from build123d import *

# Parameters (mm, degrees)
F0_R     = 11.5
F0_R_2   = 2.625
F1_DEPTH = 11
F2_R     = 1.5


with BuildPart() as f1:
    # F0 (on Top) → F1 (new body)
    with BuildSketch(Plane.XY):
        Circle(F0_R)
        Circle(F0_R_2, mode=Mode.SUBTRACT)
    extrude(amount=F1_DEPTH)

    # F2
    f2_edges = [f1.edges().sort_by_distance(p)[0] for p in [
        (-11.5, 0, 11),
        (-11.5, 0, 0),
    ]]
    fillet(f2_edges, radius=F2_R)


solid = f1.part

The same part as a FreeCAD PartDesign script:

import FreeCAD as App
import Part
import Sketcher
from FreeCAD import Vector
Q = App.Units.Quantity


def edges_at(feature, points):
    """Names of the edges that pass closest to the given points."""
    edges = feature.Shape.Edges
    near = lambda p: min(range(len(edges)), key=lambda i: edges[i].distToShape(Part.Vertex(*p))[0])
    return sorted({f"Edge{near(p) + 1}" for p in points})

doc = App.newDocument("Part")
body = doc.addObject("PartDesign::Body", "Body")

sketch1 = doc.addObject("Sketcher::SketchObject", "Sketch")
body.addObject(sketch1)
sketch1.AttachmentSupport = (doc.XY_Plane, [""])
sketch1.MapMode = "FlatFace"
sketch1.addGeometry(Part.Circle(Vector(0, 0, 0), Vector(0, 0, 1), 11.5), False)
sketch1.addGeometry(Part.Circle(Vector(0, 0, 0), Vector(0, 0, 1), 2.6), False)
sketch1.addConstraint(Sketcher.Constraint("Coincident", 0, 3, -1, 1))
sketch1.addConstraint(Sketcher.Constraint("Coincident", 1, 3, -1, 1))
sketch1.addConstraint(Sketcher.Constraint("Diameter", 0, Q("23 mm")))
sketch1.addConstraint(Sketcher.Constraint("Diameter", 1, Q("5.25 mm")))
pad1 = doc.addObject("PartDesign::Pad", "Pad")
body.addObject(pad1)
pad1.Profile = sketch1
pad1.Length = 11
doc.recompute()

fillet = doc.addObject("PartDesign::Fillet", "Fillet")
body.addObject(fillet)
fillet.Base = (pad1, edges_at(pad1, [(-11.5, 0, 11), (-11.5, 0, 0)]))
fillet.Radius = 1.5

doc.recompute()
